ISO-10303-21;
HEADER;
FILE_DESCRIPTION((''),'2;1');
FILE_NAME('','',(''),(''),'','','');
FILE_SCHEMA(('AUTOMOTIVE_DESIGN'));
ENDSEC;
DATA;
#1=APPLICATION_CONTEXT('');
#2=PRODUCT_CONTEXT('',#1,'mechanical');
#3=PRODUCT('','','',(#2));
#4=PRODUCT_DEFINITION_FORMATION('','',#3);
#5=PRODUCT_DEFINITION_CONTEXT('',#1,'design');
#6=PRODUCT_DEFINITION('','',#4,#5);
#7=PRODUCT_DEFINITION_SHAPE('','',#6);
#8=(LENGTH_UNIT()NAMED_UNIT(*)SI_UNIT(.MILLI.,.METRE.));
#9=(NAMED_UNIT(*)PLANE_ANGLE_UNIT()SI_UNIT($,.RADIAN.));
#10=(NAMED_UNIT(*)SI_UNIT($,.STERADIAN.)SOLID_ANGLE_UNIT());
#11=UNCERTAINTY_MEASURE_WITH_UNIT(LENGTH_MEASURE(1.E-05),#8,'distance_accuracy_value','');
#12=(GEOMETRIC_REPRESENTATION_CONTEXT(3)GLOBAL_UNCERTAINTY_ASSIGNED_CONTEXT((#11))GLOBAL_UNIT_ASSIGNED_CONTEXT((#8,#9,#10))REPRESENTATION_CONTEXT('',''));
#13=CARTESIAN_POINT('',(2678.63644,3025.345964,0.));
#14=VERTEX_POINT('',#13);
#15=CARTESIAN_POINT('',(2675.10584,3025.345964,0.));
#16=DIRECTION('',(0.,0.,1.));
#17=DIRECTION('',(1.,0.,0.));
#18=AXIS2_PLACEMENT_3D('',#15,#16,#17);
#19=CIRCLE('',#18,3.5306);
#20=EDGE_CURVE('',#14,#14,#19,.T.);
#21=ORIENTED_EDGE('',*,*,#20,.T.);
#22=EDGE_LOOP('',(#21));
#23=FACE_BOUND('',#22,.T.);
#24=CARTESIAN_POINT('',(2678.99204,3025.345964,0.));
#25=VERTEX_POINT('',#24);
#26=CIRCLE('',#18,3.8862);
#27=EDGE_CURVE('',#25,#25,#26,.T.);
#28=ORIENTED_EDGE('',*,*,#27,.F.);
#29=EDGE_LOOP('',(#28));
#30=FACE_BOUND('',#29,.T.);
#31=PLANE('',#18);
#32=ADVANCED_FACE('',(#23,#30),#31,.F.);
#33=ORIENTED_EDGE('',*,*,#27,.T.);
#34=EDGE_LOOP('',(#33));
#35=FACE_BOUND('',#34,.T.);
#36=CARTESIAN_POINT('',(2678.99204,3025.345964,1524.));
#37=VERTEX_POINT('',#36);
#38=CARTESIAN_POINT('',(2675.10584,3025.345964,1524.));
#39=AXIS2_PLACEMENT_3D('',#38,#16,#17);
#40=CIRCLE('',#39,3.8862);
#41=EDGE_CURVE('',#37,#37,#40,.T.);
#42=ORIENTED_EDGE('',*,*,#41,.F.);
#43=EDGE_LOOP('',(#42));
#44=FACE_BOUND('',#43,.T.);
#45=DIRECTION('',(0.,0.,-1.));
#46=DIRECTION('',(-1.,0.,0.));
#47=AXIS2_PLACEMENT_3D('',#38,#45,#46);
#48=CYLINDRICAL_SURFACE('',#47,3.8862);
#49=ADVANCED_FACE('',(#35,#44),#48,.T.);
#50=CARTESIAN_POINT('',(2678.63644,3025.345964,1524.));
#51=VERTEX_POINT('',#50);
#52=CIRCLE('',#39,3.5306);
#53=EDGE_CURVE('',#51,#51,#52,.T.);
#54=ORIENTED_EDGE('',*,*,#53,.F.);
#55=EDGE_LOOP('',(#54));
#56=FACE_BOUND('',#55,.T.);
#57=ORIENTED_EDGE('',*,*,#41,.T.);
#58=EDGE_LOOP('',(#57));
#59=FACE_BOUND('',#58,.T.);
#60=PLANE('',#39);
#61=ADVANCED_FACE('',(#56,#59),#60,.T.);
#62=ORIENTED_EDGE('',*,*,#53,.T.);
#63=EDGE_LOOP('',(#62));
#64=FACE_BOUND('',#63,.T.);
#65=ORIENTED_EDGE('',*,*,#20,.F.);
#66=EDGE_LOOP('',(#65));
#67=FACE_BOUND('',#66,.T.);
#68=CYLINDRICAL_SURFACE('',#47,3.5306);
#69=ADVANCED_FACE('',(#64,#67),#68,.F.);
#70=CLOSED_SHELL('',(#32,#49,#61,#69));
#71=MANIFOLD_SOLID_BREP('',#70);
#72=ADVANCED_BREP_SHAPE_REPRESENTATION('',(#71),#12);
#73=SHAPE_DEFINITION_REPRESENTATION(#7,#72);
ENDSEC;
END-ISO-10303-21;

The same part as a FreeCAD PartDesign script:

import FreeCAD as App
import Part
import Sketcher
from FreeCAD import Vector
Q = App.Units.Quantity

doc = App.newDocument("Part")
body = doc.addObject("PartDesign::Body", "Body")

# Sketch on XY plane
sketch1 = body.newObject("Sketcher::SketchObject", "Sketch")
sketch1.AttachmentSupport = (doc.getObject("XY_Plane"), [""])
sketch1.MapMode = "FlatFace"
sketch1.addGeometry(Part.Circle(Vector(2675.1, 3025.3, 0), Vector(0, 0, 1), 3.9), False)
sketch1.addGeometry(Part.Circle(Vector(2675.1, 3025.3, 0), Vector(0, 0, 1), 3.5), False)
sketch1.addConstraint(Sketcher.Constraint("Coincident", 1, 3, 0, 3))
sketch1.addConstraint(Sketcher.Constraint("Diameter", 0, Q("0.306 in")))
sketch1.addConstraint(Sketcher.Constraint("Diameter", 1, Q("0.278 in")))
sketch1.addConstraint(Sketcher.Constraint("DistanceX", -1, 1, 0, 3, Q("2675.10584 mm")))
sketch1.addConstraint(Sketcher.Constraint("DistanceY", -1, 1, 0, 3, Q("3025.345964 mm")))
pad1 = body.newObject("PartDesign::Pad", "Pad")
pad1.Profile = sketch1
pad1.Length = Q("60 in")

doc.recompute()
